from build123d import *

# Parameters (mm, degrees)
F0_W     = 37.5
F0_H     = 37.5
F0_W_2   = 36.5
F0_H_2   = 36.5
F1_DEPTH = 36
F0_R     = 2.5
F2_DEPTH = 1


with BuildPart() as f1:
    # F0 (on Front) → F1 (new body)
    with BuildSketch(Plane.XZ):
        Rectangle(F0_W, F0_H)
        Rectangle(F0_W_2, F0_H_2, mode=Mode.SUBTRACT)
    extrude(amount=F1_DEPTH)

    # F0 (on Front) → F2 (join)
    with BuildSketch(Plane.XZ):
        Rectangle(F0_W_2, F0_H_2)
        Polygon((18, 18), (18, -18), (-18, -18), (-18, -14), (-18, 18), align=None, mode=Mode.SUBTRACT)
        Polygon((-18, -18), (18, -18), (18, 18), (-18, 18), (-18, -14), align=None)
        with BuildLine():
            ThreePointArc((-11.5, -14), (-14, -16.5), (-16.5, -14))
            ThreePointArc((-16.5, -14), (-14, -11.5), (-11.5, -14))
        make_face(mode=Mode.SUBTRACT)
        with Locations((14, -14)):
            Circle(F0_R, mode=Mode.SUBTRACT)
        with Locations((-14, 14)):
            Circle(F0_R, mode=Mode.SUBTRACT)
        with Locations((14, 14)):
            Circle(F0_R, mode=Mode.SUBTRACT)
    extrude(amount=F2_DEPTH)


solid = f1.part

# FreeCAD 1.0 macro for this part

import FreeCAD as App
import Part
import Sketcher
Q = App.Units.Quantity


def add_polygon(sketch, points):
    """Adds a closed chain of lines whose ends are joined by coincident constraints."""
    first, n = sketch.GeometryCount, len(points)
    for a, b in zip(points, points[1:] + points[:1]):
        sketch.addGeometry(Part.LineSegment(App.Vector(*a, 0), App.Vector(*b, 0)), False)
    for i in range(n):
        sketch.addConstraint(Sketcher.Constraint("Coincident", first + i, 2, first + (i + 1) % n, 1))

doc = App.newDocument("Part")
body = doc.addObject("PartDesign::Body", "Body")

# Sketch on XZ plane
sketch1 = body.newObject("Sketcher::SketchObject", "Sketch")
sketch1.AttachmentSupport = (doc.getObject("XZ_Plane"), [""])
sketch1.MapMode = "FlatFace"
add_polygon(sketch1, [(-19, 19), (-19, -19), (19, -19), (19, 19)])  # lines 0-3
add_polygon(sketch1, [(18, -18), (-18, -18), (-18, 18), (18, 18)])  # lines 4-7
sketch1.addConstraint(Sketcher.Constraint("Vertical", 0))
sketch1.addConstraint(Sketcher.Constraint("Horizontal", 1))
sketch1.addConstraint(Sketcher.Constraint("Vertical", 2))
sketch1.addConstraint(Sketcher.Constraint("Horizontal", 3))
sketch1.addConstraint(Sketcher.Constraint("Horizontal", 4))
sketch1.addConstraint(Sketcher.Constraint("Vertical", 5))
sketch1.addConstraint(Sketcher.Constraint("Horizontal", 6))
sketch1.addConstraint(Sketcher.Constraint("Vertical", 7))
sketch1.addConstraint(Sketcher.Constraint("Symmetric", 0, 2, 2, 2, -1, 1))
sketch1.addConstraint(Sketcher.Constraint("Symmetric", 4, 2, 6, 2, -1, 1))
sketch1.addConstraint(Sketcher.Constraint("Equal", 3, 0))
sketch1.addConstraint(Sketcher.Constraint("Equal", 6, 5))
sketch1.addConstraint(Sketcher.Constraint("DistanceX", 1, 1, 1, 2, Q("37.5 mm")))
sketch1.addConstraint(Sketcher.Constraint("DistanceX", 4, 2, 4, 1, Q("36.5 mm")))
pad1 = body.newObject("PartDesign::Pad", "Pad")
pad1.Profile = sketch1
pad1.Length = 36

# Sketch on XZ plane
sketch2 = body.newObject("Sketcher::SketchObject", "Sketch001")
sketch2.AttachmentSupport = (doc.getObject("XZ_Plane"), [""])
sketch2.MapMode = "FlatFace"
add_polygon(sketch2, [(-18.2, 18.2), (-18.2, -18.2), (18.2, -18.2), (18.2, 18.2)])  # lines 0-3
sketch2.addGeometry(Part.Circle(App.Vector(-14, -14, 0), App.Vector(0, 0, 1), 2.5), False)  # 4
sketch2.addGeometry(Part.Circle(App.Vector(14, -14, 0), App.Vector(0, 0, 1), 2.5), False)  # 5
sketch2.addGeometry(Part.Circle(App.Vector(-14, 14, 0), App.Vector(0, 0, 1), 2.5), False)  # 6
sketch2.addGeometry(Part.Circle(App.Vector(14, 14, 0), App.Vector(0, 0, 1), 2.5), False)  # 7
sketch2.addConstraint(Sketcher.Constraint("Vertical", 0))
sketch2.addConstraint(Sketcher.Constraint("Horizontal", 1))
sketch2.addConstraint(Sketcher.Constraint("Vertical", 2))
sketch2.addConstraint(Sketcher.Constraint("Horizontal", 3))
sketch2.addConstraint(Sketcher.Constraint("Equal", 4, 5))
sketch2.addConstraint(Sketcher.Constraint("Equal", 5, 6))
sketch2.addConstraint(Sketcher.Constraint("Equal", 6, 7))
sketch2.addConstraint(Sketcher.Constraint("Symmetric", 5, 3, 6, 3, -1, 1))
sketch2.addConstraint(Sketcher.Constraint("Symmetric", 4, 3, 7, 3, -1, 1))
sketch2.addConstraint(Sketcher.Constraint("Symmetric", 0, 2, 2, 2, -1, 1))
sketch2.addConstraint(Sketcher.Constraint("Symmetric", 4, 3, 5, 3, -2))
sketch2.addConstraint(Sketcher.Constraint("Equal", 3, 0))
sketch2.addConstraint(Sketcher.Constraint("Diameter", 4, Q("5 mm")))
sketch2.addConstraint(Sketcher.Constraint("DistanceX", 1, 1, 1, 2, Q("36.5 mm")))
sketch2.addConstraint(Sketcher.Constraint("DistanceX", 4, 3, -1, 1, Q("14 mm")))
sketch2.addConstraint(Sketcher.Constraint("DistanceY", 4, 3, -1, 1, Q("14 mm")))
pad2 = body.newObject("PartDesign::Pad", "Pad001")
pad2.Profile = sketch2
pad2.Length = 1

doc.recompute()
